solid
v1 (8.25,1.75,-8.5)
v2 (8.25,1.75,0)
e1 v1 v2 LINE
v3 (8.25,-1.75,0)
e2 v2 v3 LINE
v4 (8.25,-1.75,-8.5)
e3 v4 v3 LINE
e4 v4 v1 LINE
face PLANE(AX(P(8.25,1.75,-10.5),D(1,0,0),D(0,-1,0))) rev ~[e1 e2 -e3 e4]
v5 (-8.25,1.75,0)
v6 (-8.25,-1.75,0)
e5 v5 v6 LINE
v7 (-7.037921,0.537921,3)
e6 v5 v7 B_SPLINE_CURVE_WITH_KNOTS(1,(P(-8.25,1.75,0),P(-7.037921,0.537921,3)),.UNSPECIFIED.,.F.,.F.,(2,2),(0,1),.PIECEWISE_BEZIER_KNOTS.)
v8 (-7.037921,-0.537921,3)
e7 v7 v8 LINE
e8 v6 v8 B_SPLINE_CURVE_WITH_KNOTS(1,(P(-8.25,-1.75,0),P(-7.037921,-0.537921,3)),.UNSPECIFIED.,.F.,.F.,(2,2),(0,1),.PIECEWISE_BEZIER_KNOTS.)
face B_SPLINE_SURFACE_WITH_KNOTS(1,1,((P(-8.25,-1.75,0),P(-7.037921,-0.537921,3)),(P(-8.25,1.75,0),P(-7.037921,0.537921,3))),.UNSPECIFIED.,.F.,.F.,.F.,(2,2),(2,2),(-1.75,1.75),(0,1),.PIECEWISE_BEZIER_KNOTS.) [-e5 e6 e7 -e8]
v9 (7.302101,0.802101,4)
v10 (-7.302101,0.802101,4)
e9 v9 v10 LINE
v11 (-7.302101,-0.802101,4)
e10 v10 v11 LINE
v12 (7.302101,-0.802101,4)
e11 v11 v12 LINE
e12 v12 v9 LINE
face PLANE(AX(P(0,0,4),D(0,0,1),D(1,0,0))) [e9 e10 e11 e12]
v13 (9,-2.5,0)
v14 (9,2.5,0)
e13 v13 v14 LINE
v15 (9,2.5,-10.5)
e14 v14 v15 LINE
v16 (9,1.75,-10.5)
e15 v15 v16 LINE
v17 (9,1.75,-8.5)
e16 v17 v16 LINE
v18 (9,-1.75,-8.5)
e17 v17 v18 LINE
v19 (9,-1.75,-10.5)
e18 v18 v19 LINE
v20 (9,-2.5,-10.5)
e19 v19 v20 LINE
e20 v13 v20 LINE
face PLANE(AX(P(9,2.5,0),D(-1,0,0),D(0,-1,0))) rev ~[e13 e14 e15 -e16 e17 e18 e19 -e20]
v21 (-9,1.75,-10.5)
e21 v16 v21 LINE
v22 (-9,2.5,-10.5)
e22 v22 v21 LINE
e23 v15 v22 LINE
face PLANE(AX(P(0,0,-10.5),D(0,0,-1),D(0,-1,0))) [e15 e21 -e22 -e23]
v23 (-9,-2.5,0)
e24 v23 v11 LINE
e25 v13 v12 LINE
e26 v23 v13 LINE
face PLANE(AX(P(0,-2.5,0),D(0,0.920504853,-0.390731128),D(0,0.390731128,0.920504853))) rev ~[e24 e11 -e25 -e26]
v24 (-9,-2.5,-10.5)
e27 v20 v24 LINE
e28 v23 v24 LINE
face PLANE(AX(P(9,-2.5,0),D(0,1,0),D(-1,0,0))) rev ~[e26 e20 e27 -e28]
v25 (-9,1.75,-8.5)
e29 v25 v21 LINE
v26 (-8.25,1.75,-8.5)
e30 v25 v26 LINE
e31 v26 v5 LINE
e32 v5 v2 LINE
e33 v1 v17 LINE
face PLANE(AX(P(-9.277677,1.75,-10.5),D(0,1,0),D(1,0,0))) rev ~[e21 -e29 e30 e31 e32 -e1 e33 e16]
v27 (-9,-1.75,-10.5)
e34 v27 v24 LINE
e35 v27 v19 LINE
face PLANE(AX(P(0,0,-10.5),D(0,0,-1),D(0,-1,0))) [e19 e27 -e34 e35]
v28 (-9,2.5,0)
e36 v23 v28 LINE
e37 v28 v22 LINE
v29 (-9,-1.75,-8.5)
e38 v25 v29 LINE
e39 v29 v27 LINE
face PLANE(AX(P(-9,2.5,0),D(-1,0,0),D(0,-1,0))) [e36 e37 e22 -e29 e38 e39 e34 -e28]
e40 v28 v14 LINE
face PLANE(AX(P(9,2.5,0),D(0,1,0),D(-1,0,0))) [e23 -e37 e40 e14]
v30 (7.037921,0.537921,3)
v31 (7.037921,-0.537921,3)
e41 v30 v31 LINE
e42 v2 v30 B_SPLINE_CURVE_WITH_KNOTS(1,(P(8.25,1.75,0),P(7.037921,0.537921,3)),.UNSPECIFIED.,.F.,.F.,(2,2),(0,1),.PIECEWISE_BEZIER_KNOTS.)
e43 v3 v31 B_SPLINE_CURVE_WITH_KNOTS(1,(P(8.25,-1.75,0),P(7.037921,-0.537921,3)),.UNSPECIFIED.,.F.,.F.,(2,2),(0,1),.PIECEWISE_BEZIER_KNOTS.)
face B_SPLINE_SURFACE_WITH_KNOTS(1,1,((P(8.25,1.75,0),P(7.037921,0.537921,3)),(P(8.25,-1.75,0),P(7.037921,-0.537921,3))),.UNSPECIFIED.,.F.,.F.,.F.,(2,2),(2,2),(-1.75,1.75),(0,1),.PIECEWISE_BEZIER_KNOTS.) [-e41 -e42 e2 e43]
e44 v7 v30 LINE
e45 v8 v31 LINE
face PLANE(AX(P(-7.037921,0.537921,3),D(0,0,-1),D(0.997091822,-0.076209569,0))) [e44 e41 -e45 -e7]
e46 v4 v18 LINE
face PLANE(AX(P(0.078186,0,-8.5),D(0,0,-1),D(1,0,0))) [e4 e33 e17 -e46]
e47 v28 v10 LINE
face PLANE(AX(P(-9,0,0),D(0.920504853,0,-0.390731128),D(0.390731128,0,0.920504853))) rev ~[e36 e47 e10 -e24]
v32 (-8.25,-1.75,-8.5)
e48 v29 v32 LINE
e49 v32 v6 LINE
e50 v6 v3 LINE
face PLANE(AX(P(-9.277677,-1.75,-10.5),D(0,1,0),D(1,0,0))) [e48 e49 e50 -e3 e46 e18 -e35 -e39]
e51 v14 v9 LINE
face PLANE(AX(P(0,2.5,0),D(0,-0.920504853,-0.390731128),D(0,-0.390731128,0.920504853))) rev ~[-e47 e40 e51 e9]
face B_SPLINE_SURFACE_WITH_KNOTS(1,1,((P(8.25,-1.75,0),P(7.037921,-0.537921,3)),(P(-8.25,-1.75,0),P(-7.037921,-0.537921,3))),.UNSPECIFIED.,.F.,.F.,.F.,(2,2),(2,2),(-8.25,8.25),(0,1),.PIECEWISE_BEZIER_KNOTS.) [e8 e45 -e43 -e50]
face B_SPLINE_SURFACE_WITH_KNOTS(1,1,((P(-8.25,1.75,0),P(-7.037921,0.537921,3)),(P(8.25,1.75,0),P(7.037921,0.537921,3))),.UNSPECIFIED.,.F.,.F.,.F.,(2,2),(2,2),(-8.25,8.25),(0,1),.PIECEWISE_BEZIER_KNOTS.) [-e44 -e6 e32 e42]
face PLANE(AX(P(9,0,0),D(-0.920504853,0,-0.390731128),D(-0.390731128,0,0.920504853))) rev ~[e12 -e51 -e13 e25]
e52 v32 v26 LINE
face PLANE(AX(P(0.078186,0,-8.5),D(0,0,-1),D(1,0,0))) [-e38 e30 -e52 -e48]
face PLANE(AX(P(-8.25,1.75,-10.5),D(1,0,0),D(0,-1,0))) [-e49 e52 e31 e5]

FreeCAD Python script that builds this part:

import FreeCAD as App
import Part
import Sketcher
from FreeCAD import Vector


def add_polygon(sketch, points):
    """Adds a closed chain of lines whose ends are joined by coincident constraints."""
    first, n = sketch.GeometryCount, len(points)
    for a, b in zip(points, points[1:] + points[:1]):
        sketch.addGeometry(Part.LineSegment(App.Vector(*a, 0), App.Vector(*b, 0)), False)
    for i in range(n):
        sketch.addConstraint(Sketcher.Constraint("Coincident", first + i, 2, first + (i + 1) % n, 1))

doc = App.newDocument("Part")
body = doc.addObject("PartDesign::Body", "Body")

# Sketch on XY plane
sketch1 = body.newObject("Sketcher::SketchObject", "Sketch")
sketch1.AttachmentSupport = (doc.getObject("XY_Plane"), [""])
sketch1.MapMode = "FlatFace"
add_polygon(sketch1, [(-9, 2), (-9, -2), (9, -2), (9, 2)])  # lines 0-3
sketch1.addConstraint(Sketcher.Constraint("Vertical", 0))
sketch1.addConstraint(Sketcher.Constraint("Horizontal", 1))
sketch1.addConstraint(Sketcher.Constraint("Vertical", 2))
sketch1.addConstraint(Sketcher.Constraint("Horizontal", 3))
sketch1.addConstraint(Sketcher.Constraint("Symmetric", 0, 2, 2, 2, -1, 1))
sketch1.addConstraint(Sketcher.Constraint("DistanceX", 1, 1, 1, 2, 18.0))
sketch1.addConstraint(Sketcher.Constraint("DistanceY", 0, 2, 0, 1, 5.0))
pad1 = body.newObject("PartDesign::Pad", "Pad")
pad1.Profile = sketch1
pad1.Length = 4
pad1.TaperAngle = -23

# Sketch on XY plane
sketch2 = body.newObject("Sketcher::SketchObject", "Sketch001")
sketch2.AttachmentSupport = (doc.getObject("XY_Plane"), [""])
sketch2.MapMode = "FlatFace"
add_polygon(sketch2, [(-9, 2), (9, 2), (9, -2), (-9, -2)])  # lines 0-3
sketch2.addConstraint(Sketcher.Constraint("Horizontal", 0))
sketch2.addConstraint(Sketcher.Constraint("Vertical", 1))
sketch2.addConstraint(Sketcher.Constraint("Horizontal", 2))
sketch2.addConstraint(Sketcher.Constraint("Vertical", 3))
sketch2.addConstraint(Sketcher.Constraint("Symmetric", 0, 2, 2, 2, -1, 1))
sketch2.addConstraint(Sketcher.Constraint("DistanceX", 0, 1, 0, 2, 18.0))
sketch2.addConstraint(Sketcher.Constraint("DistanceY", 1, 2, 1, 1, 5.0))
pad2 = body.newObject("PartDesign::Pad", "Pad001")
pad2.Profile = sketch2
pad2.Length = 10.5
pad2.Reversed = True

# Sketch on XY plane
sketch3 = body.newObject("Sketcher::SketchObject", "Sketch002")
sketch3.AttachmentSupport = (doc.getObject("XY_Plane"), [""])
sketch3.MapMode = "FlatFace"
sketch3.AttachmentOffset = App.Placement(Vector(0, 0, -10.5), App.Rotation())
add_polygon(sketch3, [(-8.2, -1.8), (-8.2, 1.8), (8.2, 1.8), (8.2, -1.8)])  # lines 0-3
sketch3.addConstraint(Sketcher.Constraint("Vertical", 0))
sketch3.addConstraint(Sketcher.Constraint("Horizontal", 1))
sketch3.addConstraint(Sketcher.Constraint("Vertical", 2))
sketch3.addConstraint(Sketcher.Constraint("Horizontal", 3))
sketch3.addConstraint(Sketcher.Constraint("Symmetric", 0, 2, 2, 2, -1, 1))
sketch3.addConstraint(Sketcher.Constraint("DistanceX", 1, 1, 1, 2, 16.5))
sketch3.addConstraint(Sketcher.Constraint("DistanceY", 0, 1, 0, 2, 3.5))
pocket1 = body.newObject("PartDesign::Pocket", "Pocket")
pocket1.Profile = sketch3
pocket1.Length = 10.5
pocket1.Reversed = True

# Sketch on XY plane
sketch4 = body.newObject("Sketcher::SketchObject", "Sketch003")
sketch4.AttachmentSupport = (doc.getObject("XY_Plane"), [""])
sketch4.MapMode = "FlatFace"
add_polygon(sketch4, [(-8.2, -1.8), (-8.2, 1.8), (8.2, 1.8), (8.2, -1.8)])  # lines 0-3
sketch4.addConstraint(Sketcher.Constraint("Vertical", 0))
sketch4.addConstraint(Sketcher.Constraint("Horizontal", 1))
sketch4.addConstraint(Sketcher.Constraint("Vertical", 2))
sketch4.addConstraint(Sketcher.Constraint("Horizontal", 3))
sketch4.addConstraint(Sketcher.Constraint("Symmetric", 0, 2, 2, 2, -1, 1))
sketch4.addConstraint(Sketcher.Constraint("DistanceX", 1, 1, 1, 2, 16.5))
sketch4.addConstraint(Sketcher.Constraint("DistanceY", 0, 1, 0, 2, 3.5))
pocket2 = body.newObject("PartDesign::Pocket", "Pocket001")
pocket2.Profile = sketch4
pocket2.Length = 3
pocket2.Reversed = True
pocket2.TaperAngle = -22

# Sketch on XY plane
sketch5 = body.newObject("Sketcher::SketchObject", "Sketch004")
sketch5.AttachmentSupport = (doc.getObject("XY_Plane"), [""])
sketch5.MapMode = "FlatFace"
sketch5.AttachmentOffset = App.Placement(Vector(0, 0, -10.5), App.Rotation())
add_polygon(sketch5, [(-9.3, -1.8), (-9.3, 1.8), (9.4, 1.8), (9.4, -1.8)])  # lines 0-3
sketch5.addConstraint(Sketcher.Constraint("Vertical", 0))
sketch5.addConstraint(Sketcher.Constraint("Horizontal", 1))
sketch5.addConstraint(Sketcher.Constraint("Vertical", 2))
sketch5.addConstraint(Sketcher.Constraint("Horizontal", 3))
sketch5.addConstraint(Sketcher.Constraint("DistanceY", 0, 1, 0, 2, 3.5))
sketch5.addConstraint(Sketcher.Constraint("DistanceY", -1, 1, 0, 2, 1.75))
sketch5.addConstraint(Sketcher.Constraint("DistanceX", 1, 1, 1, 2, 18.711727))
sketch5.addConstraint(Sketcher.Constraint("DistanceX", -1, 1, 1, 2, 9.43405))
pocket3 = body.newObject("PartDesign::Pocket", "Pocket002")
pocket3.Profile = sketch5
pocket3.Length = 2
pocket3.Reversed = True

doc.recompute()
